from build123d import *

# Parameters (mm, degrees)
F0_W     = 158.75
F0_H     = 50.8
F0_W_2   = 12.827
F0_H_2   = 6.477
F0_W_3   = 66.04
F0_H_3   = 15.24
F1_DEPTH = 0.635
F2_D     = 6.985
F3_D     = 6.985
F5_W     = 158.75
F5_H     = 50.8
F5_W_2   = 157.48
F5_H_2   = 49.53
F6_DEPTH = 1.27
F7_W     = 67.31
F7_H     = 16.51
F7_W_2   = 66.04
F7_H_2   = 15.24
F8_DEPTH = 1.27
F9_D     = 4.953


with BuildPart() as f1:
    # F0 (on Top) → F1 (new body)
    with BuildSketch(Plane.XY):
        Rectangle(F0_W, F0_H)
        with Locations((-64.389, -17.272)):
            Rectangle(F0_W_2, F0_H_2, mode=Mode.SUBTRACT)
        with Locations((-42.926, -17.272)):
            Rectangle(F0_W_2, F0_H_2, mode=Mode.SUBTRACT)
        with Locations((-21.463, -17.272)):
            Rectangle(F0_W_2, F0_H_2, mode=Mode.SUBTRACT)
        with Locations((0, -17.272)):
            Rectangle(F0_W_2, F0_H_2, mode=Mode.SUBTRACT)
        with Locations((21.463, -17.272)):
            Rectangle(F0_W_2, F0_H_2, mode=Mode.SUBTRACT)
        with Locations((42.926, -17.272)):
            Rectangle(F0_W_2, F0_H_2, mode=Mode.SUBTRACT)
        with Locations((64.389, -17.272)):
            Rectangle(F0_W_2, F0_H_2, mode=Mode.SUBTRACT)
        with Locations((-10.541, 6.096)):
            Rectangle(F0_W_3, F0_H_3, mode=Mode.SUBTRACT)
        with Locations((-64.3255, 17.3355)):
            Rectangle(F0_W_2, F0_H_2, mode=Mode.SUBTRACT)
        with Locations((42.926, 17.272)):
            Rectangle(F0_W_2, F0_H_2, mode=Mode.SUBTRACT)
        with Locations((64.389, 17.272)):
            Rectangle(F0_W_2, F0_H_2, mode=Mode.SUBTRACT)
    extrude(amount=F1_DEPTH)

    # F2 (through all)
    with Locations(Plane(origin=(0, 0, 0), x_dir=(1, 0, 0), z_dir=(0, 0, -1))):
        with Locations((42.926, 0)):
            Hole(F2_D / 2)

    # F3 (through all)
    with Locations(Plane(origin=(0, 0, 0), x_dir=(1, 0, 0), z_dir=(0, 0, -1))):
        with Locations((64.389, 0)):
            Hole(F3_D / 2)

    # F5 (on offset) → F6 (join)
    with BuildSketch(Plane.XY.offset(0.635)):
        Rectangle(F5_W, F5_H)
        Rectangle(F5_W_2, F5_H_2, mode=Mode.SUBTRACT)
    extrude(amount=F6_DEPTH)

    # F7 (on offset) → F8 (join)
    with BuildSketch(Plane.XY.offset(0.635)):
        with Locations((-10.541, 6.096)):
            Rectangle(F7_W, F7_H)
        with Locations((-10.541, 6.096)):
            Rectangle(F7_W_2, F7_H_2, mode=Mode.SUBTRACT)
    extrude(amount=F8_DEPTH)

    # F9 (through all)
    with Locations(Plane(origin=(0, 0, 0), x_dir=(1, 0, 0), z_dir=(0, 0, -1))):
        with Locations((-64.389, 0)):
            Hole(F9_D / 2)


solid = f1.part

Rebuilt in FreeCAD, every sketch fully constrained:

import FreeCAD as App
import Part
import Sketcher
from FreeCAD import Vector
Q = App.Units.Quantity

doc = App.newDocument("Part")
body = doc.addObject("PartDesign::Body", "Body")

# Sketch on XY plane
sketch1 = body.newObject("Sketcher::SketchObject", "Sketch")
sketch1.AttachmentSupport = (doc.getObject("XY_Plane"), [""])
sketch1.MapMode = "FlatFace"
sketch1.addGeometry(Part.LineSegment(Vector(-79, 25, 0), Vector(-79, -25, 0)), False)
sketch1.addGeometry(Part.LineSegment(Vector(-79, -25, 0), Vector(79, -25, 0)), False)
sketch1.addGeometry(Part.LineSegment(Vector(79, -25, 0), Vector(79, 25, 0)), False)
sketch1.addGeometry(Part.LineSegment(Vector(79, 25, 0), Vector(-79, 25, 0)), False)
sketch1.addGeometry(Part.LineSegment(Vector(-58, -21, 0), Vector(-71, -21, 0)), False)
sketch1.addGeometry(Part.LineSegment(Vector(-71, -21, 0), Vector(-71, -14, 0)), False)
sketch1.addGeometry(Part.LineSegment(Vector(-71, -14, 0), Vector(-58, -14, 0)), False)
sketch1.addGeometry(Part.LineSegment(Vector(-58, -14, 0), Vector(-58, -21, 0)), False)
sketch1.addGeometry(Part.LineSegment(Vector(-37, -21, 0), Vector(-49, -21, 0)), False)
sketch1.addGeometry(Part.LineSegment(Vector(-49, -21, 0), Vector(-49, -14, 0)), False)
sketch1.addGeometry(Part.LineSegment(Vector(-49, -14, 0), Vector(-37, -14, 0)), False)
sketch1.addGeometry(Part.LineSegment(Vector(-37, -14, 0), Vector(-37, -21, 0)), False)
sketch1.addGeometry(Part.LineSegment(Vector(-15, -21, 0), Vector(-28, -21, 0)), False)
sketch1.addGeometry(Part.LineSegment(Vector(-28, -21, 0), Vector(-28, -14, 0)), False)
sketch1.addGeometry(Part.LineSegment(Vector(-28, -14, 0), Vector(-15, -14, 0)), False)
sketch1.addGeometry(Part.LineSegment(Vector(-15, -14, 0), Vector(-15, -21, 0)), False)
sketch1.addGeometry(Part.LineSegment(Vector(6, -21, 0), Vector(-6, -21, 0)), False)
sketch1.addGeometry(Part.LineSegment(Vector(-6, -21, 0), Vector(-6, -14, 0)), False)
sketch1.addGeometry(Part.LineSegment(Vector(-6, -14, 0), Vector(6, -14, 0)), False)
sketch1.addGeometry(Part.LineSegment(Vector(6, -14, 0), Vector(6, -21, 0)), False)
sketch1.addGeometry(Part.LineSegment(Vector(28, -21, 0), Vector(15, -21, 0)), False)
sketch1.addGeometry(Part.LineSegment(Vector(15, -21, 0), Vector(15, -14, 0)), False)
sketch1.addGeometry(Part.LineSegment(Vector(15, -14, 0), Vector(28, -14, 0)), False)
sketch1.addGeometry(Part.LineSegment(Vector(28, -14, 0), Vector(28, -21, 0)), False)
sketch1.addGeometry(Part.LineSegment(Vector(49, -21, 0), Vector(37, -21, 0)), False)
sketch1.addGeometry(Part.LineSegment(Vector(37, -21, 0), Vector(37, -14, 0)), False)
sketch1.addGeometry(Part.LineSegment(Vector(37, -14, 0), Vector(49, -14, 0)), False)
sketch1.addGeometry(Part.LineSegment(Vector(49, -14, 0), Vector(49, -21, 0)), False)
sketch1.addGeometry(Part.LineSegment(Vector(71, -21, 0), Vector(58, -21, 0)), False)
sketch1.addGeometry(Part.LineSegment(Vector(58, -21, 0), Vector(58, -14, 0)), False)
sketch1.addGeometry(Part.LineSegment(Vector(58, -14, 0), Vector(71, -14, 0)), False)
sketch1.addGeometry(Part.LineSegment(Vector(71, -14, 0), Vector(71, -21, 0)), False)
sketch1.addGeometry(Part.LineSegment(Vector(22, -2, 0), Vector(-44, -2, 0)), False)
sketch1.addGeometry(Part.LineSegment(Vector(-44, -2, 0), Vector(-44, 14, 0)), False)
sketch1.addGeometry(Part.LineSegment(Vector(-44, 14, 0), Vector(22, 14, 0)), False)
sketch1.addGeometry(Part.LineSegment(Vector(22, 14, 0), Vector(22, -2, 0)), False)
sketch1.addGeometry(Part.LineSegment(Vector(-58, 14, 0), Vector(-71, 14, 0)), False)
sketch1.addGeometry(Part.LineSegment(Vector(-71, 14, 0), Vector(-71, 21, 0)), False)
sketch1.addGeometry(Part.LineSegment(Vector(-71, 21, 0), Vector(-58, 21, 0)), False)
sketch1.addGeometry(Part.LineSegment(Vector(-58, 21, 0), Vector(-58, 14, 0)), False)
sketch1.addGeometry(Part.LineSegment(Vector(49, 14, 0), Vector(37, 14, 0)), False)
sketch1.addGeometry(Part.LineSegment(Vector(37, 14, 0), Vector(37, 21, 0)), False)
sketch1.addGeometry(Part.LineSegment(Vector(37, 21, 0), Vector(49, 21, 0)), False)
sketch1.addGeometry(Part.LineSegment(Vector(49, 21, 0), Vector(49, 14, 0)), False)
sketch1.addGeometry(Part.LineSegment(Vector(71, 14, 0), Vector(58, 14, 0)), False)
sketch1.addGeometry(Part.LineSegment(Vector(58, 14, 0), Vector(58, 21, 0)), False)
sketch1.addGeometry(Part.LineSegment(Vector(58, 21, 0), Vector(71, 21, 0)), False)
sketch1.addGeometry(Part.LineSegment(Vector(71, 21, 0), Vector(71, 14, 0)), False)
sketch1.addConstraint(Sketcher.Constraint("Coincident", 0, 2, 1, 1))
sketch1.addConstraint(Sketcher.Constraint("Coincident", 1, 2, 2, 1))
sketch1.addConstraint(Sketcher.Constraint("Coincident", 2, 2, 3, 1))
sketch1.addConstraint(Sketcher.Constraint("Coincident", 3, 2, 0, 1))
sketch1.addConstraint(Sketcher.Constraint("Coincident", 4, 2, 5, 1))
sketch1.addConstraint(Sketcher.Constraint("Coincident", 5, 2, 6, 1))
sketch1.addConstraint(Sketcher.Constraint("Coincident", 6, 2, 7, 1))
sketch1.addConstraint(Sketcher.Constraint("Coincident", 7, 2, 4, 1))
sketch1.addConstraint(Sketcher.Constraint("Coincident", 8, 2, 9, 1))
sketch1.addConstraint(Sketcher.Constraint("Coincident", 9, 2, 10, 1))
sketch1.addConstraint(Sketcher.Constraint("Coincident", 10, 2, 11, 1))
sketch1.addConstraint(Sketcher.Constraint("Coincident", 11, 2, 8, 1))
sketch1.addConstraint(Sketcher.Constraint("Coincident", 12, 2, 13, 1))
sketch1.addConstraint(Sketcher.Constraint("Coincident", 13, 2, 14, 1))
sketch1.addConstraint(Sketcher.Constraint("Coincident", 14, 2, 15, 1))
sketch1.addConstraint(Sketcher.Constraint("Coincident", 15, 2, 12, 1))
sketch1.addConstraint(Sketcher.Constraint("Coincident", 16, 2, 17, 1))
sketch1.addConstraint(Sketcher.Constraint("Coincident", 17, 2, 18, 1))
sketch1.addConstraint(Sketcher.Constraint("Coincident", 18, 2, 19, 1))
sketch1.addConstraint(Sketcher.Constraint("Coincident", 19, 2, 16, 1))
sketch1.addConstraint(Sketcher.Constraint("Coincident", 20, 2, 21, 1))
sketch1.addConstraint(Sketcher.Constraint("Coincident", 21, 2, 22, 1))
sketch1.addConstraint(Sketcher.Constraint("Coincident", 22, 2, 23, 1))
sketch1.addConstraint(Sketcher.Constraint("Coincident", 23, 2, 20, 1))
sketch1.addConstraint(Sketcher.Constraint("Coincident", 24, 2, 25, 1))
sketch1.addConstraint(Sketcher.Constraint("Coincident", 25, 2, 26, 1))
sketch1.addConstraint(Sketcher.Constraint("Coincident", 26, 2, 27, 1))
sketch1.addConstraint(Sketcher.Constraint("Coincident", 27, 2, 24, 1))
sketch1.addConstraint(Sketcher.Constraint("Coincident", 28, 2, 29, 1))
sketch1.addConstraint(Sketcher.Constraint("Coincident", 29, 2, 30, 1))
sketch1.addConstraint(Sketcher.Constraint("Coincident", 30, 2, 31, 1))
sketch1.addConstraint(Sketcher.Constraint("Coincident", 31, 2, 28, 1))
sketch1.addConstraint(Sketcher.Constraint("Coincident", 32, 2, 33, 1))
sketch1.addConstraint(Sketcher.Constraint("Coincident", 33, 2, 34, 1))
sketch1.addConstraint(Sketcher.Constraint("Coincident", 34, 2, 35, 1))
sketch1.addConstraint(Sketcher.Constraint("Coincident", 35, 2, 32, 1))
sketch1.addConstraint(Sketcher.Constraint("Coincident", 36, 2, 37, 1))
sketch1.addConstraint(Sketcher.Constraint("Coincident", 37, 2, 38, 1))
sketch1.addConstraint(Sketcher.Constraint("Coincident", 38, 2, 39, 1))
sketch1.addConstraint(Sketcher.Constraint("Coincident", 39, 2, 36, 1))
sketch1.addConstraint(Sketcher.Constraint("Coincident", 40, 2, 41, 1))
sketch1.addConstraint(Sketcher.Constraint("Coincident", 41, 2, 42, 1))
sketch1.addConstraint(Sketcher.Constraint("Coincident", 42, 2, 43, 1))
sketch1.addConstraint(Sketcher.Constraint("Coincident", 43, 2, 40, 1))
sketch1.addConstraint(Sketcher.Constraint("Coincident", 44, 2, 45, 1))
sketch1.addConstraint(Sketcher.Constraint("Coincident", 45, 2, 46, 1))
sketch1.addConstraint(Sketcher.Constraint("Coincident", 46, 2, 47, 1))
sketch1.addConstraint(Sketcher.Constraint("Coincident", 47, 2, 44, 1))
sketch1.addConstraint(Sketcher.Constraint("Vertical", 0))
sketch1.addConstraint(Sketcher.Constraint("Horizontal", 1))
sketch1.addConstraint(Sketcher.Constraint("Vertical", 2))
sketch1.addConstraint(Sketcher.Constraint("Horizontal", 3))
sketch1.addConstraint(Sketcher.Constraint("Horizontal", 4))
sketch1.addConstraint(Sketcher.Constraint("Vertical", 5))
sketch1.addConstraint(Sketcher.Constraint("Horizontal", 6))
sketch1.addConstraint(Sketcher.Constraint("Vertical", 7))
sketch1.addConstraint(Sketcher.Constraint("Horizontal", 8))
sketch1.addConstraint(Sketcher.Constraint("Vertical", 9))
sketch1.addConstraint(Sketcher.Constraint("Horizontal", 10))
sketch1.addConstraint(Sketcher.Constraint("Vertical", 11))
sketch1.addConstraint(Sketcher.Constraint("Horizontal", 12))
sketch1.addConstraint(Sketcher.Constraint("Vertical", 13))
sketch1.addConstraint(Sketcher.Constraint("Horizontal", 14))
sketch1.addConstraint(Sketcher.Constraint("Vertical", 15))
sketch1.addConstraint(Sketcher.Constraint("Horizontal", 16))
sketch1.addConstraint(Sketcher.Constraint("Vertical", 17))
sketch1.addConstraint(Sketcher.Constraint("Horizontal", 18))
sketch1.addConstraint(Sketcher.Constraint("Vertical", 19))
sketch1.addConstraint(Sketcher.Constraint("Horizontal", 20))
sketch1.addConstraint(Sketcher.Constraint("Vertical", 21))
sketch1.addConstraint(Sketcher.Constraint("Horizontal", 22))
sketch1.addConstraint(Sketcher.Constraint("Vertical", 23))
sketch1.addConstraint(Sketcher.Constraint("Horizontal", 24))
sketch1.addConstraint(Sketcher.Constraint("Vertical", 25))
sketch1.addConstraint(Sketcher.Constraint("Horizontal", 26))
sketch1.addConstraint(Sketcher.Constraint("Vertical", 27))
sketch1.addConstraint(Sketcher.Constraint("Horizontal", 28))
sketch1.addConstraint(Sketcher.Constraint("Vertical", 29))
sketch1.addConstraint(Sketcher.Constraint("Horizontal", 30))
sketch1.addConstraint(Sketcher.Constraint("Vertical", 31))
sketch1.addConstraint(Sketcher.Constraint("Horizontal", 32))
sketch1.addConstraint(Sketcher.Constraint("Vertical", 33))
sketch1.addConstraint(Sketcher.Constraint("Horizontal", 34))
sketch1.addConstraint(Sketcher.Constraint("Vertical", 35))
sketch1.addConstraint(Sketcher.Constraint("Horizontal", 36))
sketch1.addConstraint(Sketcher.Constraint("Vertical", 37))
sketch1.addConstraint(Sketcher.Constraint("Horizontal", 38))
sketch1.addConstraint(Sketcher.Constraint("Vertical", 39))
sketch1.addConstraint(Sketcher.Constraint("Horizontal", 40))
sketch1.addConstraint(Sketcher.Constraint("Vertical", 41))
sketch1.addConstraint(Sketcher.Constraint("Horizontal", 42))
sketch1.addConstraint(Sketcher.Constraint("Vertical", 43))
sketch1.addConstraint(Sketcher.Constraint("Horizontal", 44))
sketch1.addConstraint(Sketcher.Constraint("Vertical", 45))
sketch1.addConstraint(Sketcher.Constraint("Horizontal", 46))
sketch1.addConstraint(Sketcher.Constraint("Vertical", 47))
sketch1.addConstraint(Sketcher.Constraint("Symmetric", 0, 2, 2, 2, -1, 1))
sketch1.addConstraint(Sketcher.Constraint("Symmetric", 10, 2, 40, 2, -1, 1))
sketch1.addConstraint(Sketcher.Constraint("Symmetric", 8, 2, 42, 2, -1, 1))
sketch1.addConstraint(Sketcher.Constraint("Symmetric", 6, 2, 44, 2, -1, 1))
sketch1.addConstraint(Sketcher.Constraint("Symmetric", 4, 2, 46, 2, -1, 1))
sketch1.addConstraint(Sketcher.Constraint("Symmetric", 15, 2, 20, 2, -2))
sketch1.addConstraint(Sketcher.Constraint("Symmetric", 13, 2, 22, 2, -2))
sketch1.addConstraint(Sketcher.Constraint("Symmetric", 11, 2, 24, 2, -2))
sketch1.addConstraint(Sketcher.Constraint("Symmetric", 9, 2, 26, 2, -2))
sketch1.addConstraint(Sketcher.Constraint("Symmetric", 7, 2, 28, 2, -2))
sketch1.addConstraint(Sketcher.Constraint("Symmetric", 5, 2, 30, 2, -2))
sketch1.addConstraint(Sketcher.Constraint("Horizontal", 7, 2, 8, 2))
sketch1.addConstraint(Sketcher.Constraint("Horizontal", 6, 2, 9, 2))
sketch1.addConstraint(Sketcher.Constraint("Horizontal", 11, 2, 12, 2))
sketch1.addConstraint(Sketcher.Constraint("Horizontal", 10, 2, 13, 2))
sketch1.addConstraint(Sketcher.Constraint("Horizontal", 15, 2, 16, 2))
sketch1.addConstraint(Sketcher.Constraint("Horizontal", 14, 2, 17, 2))
sketch1.addConstraint(Sketcher.Constraint("Equal", 6, 8))
sketch1.addConstraint(Sketcher.Constraint("Equal", 10, 12))
sketch1.addConstraint(Sketcher.Constraint("Equal", 14, 16))
sketch1.addConstraint(Sketcher.Constraint("Equal", 30, 36))
sketch1.addConstraint(Sketcher.Constraint("Equal", 31, 37))
sketch1.addConstraint(Sketcher.Constraint("DistanceY", 0, 2, 0, 1, Q("2 in")))
sketch1.addConstraint(Sketcher.Constraint("DistanceX", 32, 2, 32, 1, Q("2.6 in")))
sketch1.addConstraint(Sketcher.Constraint("DistanceY", 33, 1, 33, 2, Q("0.6 in")))
sketch1.addConstraint(Sketcher.Constraint("DistanceX", 1, 1, 1, 2, Q("6.25 in")))
sketch1.addConstraint(Sketcher.Constraint("DistanceX", 4, 2, 4, 1, Q("0.505 in")))
sketch1.addConstraint(Sketcher.Constraint("DistanceY", 5, 1, 5, 2, Q("0.255 in")))
sketch1.addConstraint(Sketcher.Constraint("DistanceY", 32, 2, -1, 1, Q("0.06 in")))
sketch1.addConstraint(Sketcher.Constraint("DistanceY", -1, 1, 37, 2, Q("0.81 in")))
sketch1.addConstraint(Sketcher.Constraint("DistanceX", 38, 2, -1, 1, Q("2.28 in")))
sketch1.addConstraint(Sketcher.Constraint("DistanceX", 7, 2, 8, 2, Q("0.34 in")))
sketch1.addConstraint(Sketcher.Constraint("DistanceX", 11, 2, 12, 2, Q("0.34 in")))
sketch1.addConstraint(Sketcher.Constraint("DistanceX", 15, 2, 16, 2, Q("0.34 in")))
sketch1.addConstraint(Sketcher.Constraint("DistanceX", 19, 2, 20, 2, Q("0.34 in")))
sketch1.addConstraint(Sketcher.Constraint("DistanceX", 36, 2, 33, 2, Q("1.07 in")))
sketch1.addConstraint(Sketcher.Constraint("DistanceY", 25, 2, 41, 2, Q("1.36 in")))
pad1 = body.newObject("PartDesign::Pad", "Pad")
pad1.Profile = sketch1
pad1.Length = Q("0.025 in")

# Sketch on XY plane
sketch2 = body.newObject("Sketcher::SketchObject", "Sketch001")
sketch2.AttachmentSupport = (doc.getObject("XY_Plane"), [""])
sketch2.MapMode = "FlatFace"
sketch2.addGeometry(Part.Circle(Vector(42.9, 0, 0), Vector(0, 0, 1), 3.5), False)
sketch2.addConstraint(Sketcher.Constraint("PointOnObject", 0, 3, -1))
sketch2.addConstraint(Sketcher.Constraint("Diameter", 0, Q("0.275 in")))
sketch2.addConstraint(Sketcher.Constraint("DistanceX", -1, 1, 0, 3, Q("1.69 in")))
doc.recompute()
hole = body.newObject("PartDesign::Hole", "Hole")
hole.Profile = sketch2
hole.ThreadType = "None"
hole.Diameter = Q("0.275 in")
hole.DepthType = "ThroughAll"
hole.Reversed = True

# Sketch on XY plane
sketch3 = body.newObject("Sketcher::SketchObject", "Sketch002")
sketch3.AttachmentSupport = (doc.getObject("XY_Plane"), [""])
sketch3.MapMode = "FlatFace"
sketch3.addGeometry(Part.Circle(Vector(64.4, 0, 0), Vector(0, 0, 1), 3.5), False)
sketch3.addConstraint(Sketcher.Constraint("PointOnObject", 0, 3, -1))
sketch3.addConstraint(Sketcher.Constraint("Diameter", 0, Q("0.275 in")))
sketch3.addConstraint(Sketcher.Constraint("DistanceX", -1, 1, 0, 3, Q("2.535 in")))
doc.recompute()
hole2 = body.newObject("PartDesign::Hole", "Hole001")
hole2.Profile = sketch3
hole2.ThreadType = "None"
hole2.Diameter = Q("0.275 in")
hole2.DepthType = "ThroughAll"
hole2.Reversed = True

# Sketch on XY plane
sketch4 = body.newObject("Sketcher::SketchObject", "Sketch003")
sketch4.AttachmentSupport = (doc.getObject("XY_Plane"), [""])
sketch4.MapMode = "FlatFace"
sketch4.AttachmentOffset = App.Placement(Vector(0, 0, 0.025 * 25.4), App.Rotation())
sketch4.addGeometry(Part.LineSegment(Vector(-79, 25, 0), Vector(-79, -25, 0)), False)
sketch4.addGeometry(Part.LineSegment(Vector(-79, -25, 0), Vector(79, -25, 0)), False)
sketch4.addGeometry(Part.LineSegment(Vector(79, -25, 0), Vector(79, 25, 0)), False)
sketch4.addGeometry(Part.LineSegment(Vector(79, 25, 0), Vector(-79, 25, 0)), False)
sketch4.addGeometry(Part.LineSegment(Vector(79, -25, 0), Vector(-79, -25, 0)), False)
sketch4.addGeometry(Part.LineSegment(Vector(-79, -25, 0), Vector(-79, 25, 0)), False)
sketch4.addGeometry(Part.LineSegment(Vector(-79, 25, 0), Vector(79, 25, 0)), False)
sketch4.addGeometry(Part.LineSegment(Vector(79, 25, 0), Vector(79, -25, 0)), False)
sketch4.addConstraint(Sketcher.Constraint("Coincident", 0, 2, 1, 1))
sketch4.addConstraint(Sketcher.Constraint("Coincident", 1, 2, 2, 1))
sketch4.addConstraint(Sketcher.Constraint("Coincident", 2, 2, 3, 1))
sketch4.addConstraint(Sketcher.Constraint("Coincident", 3, 2, 0, 1))
sketch4.addConstraint(Sketcher.Constraint("Coincident", 4, 2, 5, 1))
sketch4.addConstraint(Sketcher.Constraint("Coincident", 5, 2, 6, 1))
sketch4.addConstraint(Sketcher.Constraint("Coincident", 6, 2, 7, 1))
sketch4.addConstraint(Sketcher.Constraint("Coincident", 7, 2, 4, 1))
sketch4.addConstraint(Sketcher.Constraint("Vertical", 0))
sketch4.addConstraint(Sketcher.Constraint("Horizontal", 1))
sketch4.addConstraint(Sketcher.Constraint("Vertical", 2))
sketch4.addConstraint(Sketcher.Constraint("Horizontal", 3))
sketch4.addConstraint(Sketcher.Constraint("Horizontal", 4))
sketch4.addConstraint(Sketcher.Constraint("Vertical", 5))
sketch4.addConstraint(Sketcher.Constraint("Horizontal", 6))
sketch4.addConstraint(Sketcher.Constraint("Vertical", 7))
sketch4.addConstraint(Sketcher.Constraint("Symmetric", 0, 2, 2, 2, -1, 1))
sketch4.addConstraint(Sketcher.Constraint("Symmetric", 4, 2, 6, 2, -1, 1))
sketch4.addConstraint(Sketcher.Constraint("DistanceY", 0, 2, 0, 1, Q("2 in")))
sketch4.addConstraint(Sketcher.Constraint("DistanceX", 4, 2, 4, 1, Q("6.2 in")))
sketch4.addConstraint(Sketcher.Constraint("DistanceX", 1, 1, 1, 2, Q("6.25 in")))
sketch4.addConstraint(Sketcher.Constraint("DistanceY", 5, 1, 5, 2, Q("1.95 in")))
pad2 = body.newObject("PartDesign::Pad", "Pad001")
pad2.Profile = sketch4
pad2.Length = Q("0.05 in")

# Sketch on XY plane
sketch5 = body.newObject("Sketcher::SketchObject", "Sketch004")
sketch5.AttachmentSupport = (doc.getObject("XY_Plane"), [""])
sketch5.MapMode = "FlatFace"
sketch5.AttachmentOffset = App.Placement(Vector(0, 0, 0.025 * 25.4), App.Rotation())
sketch5.addGeometry(Part.LineSegment(Vector(-44, 14, 0), Vector(-44, -2, 0)), False)
sketch5.addGeometry(Part.LineSegment(Vector(-44, -2, 0), Vector(23, -2, 0)), False)
sketch5.addGeometry(Part.LineSegment(Vector(23, -2, 0), Vector(23, 14, 0)), False)
sketch5.addGeometry(Part.LineSegment(Vector(23, 14, 0), Vector(-44, 14, 0)), False)
sketch5.addGeometry(Part.LineSegment(Vector(22, -2, 0), Vector(-44, -2, 0)), False)
sketch5.addGeometry(Part.LineSegment(Vector(-44, -2, 0), Vector(-44, 14, 0)), False)
sketch5.addGeometry(Part.LineSegment(Vector(-44, 14, 0), Vector(22, 14, 0)), False)
sketch5.addGeometry(Part.LineSegment(Vector(22, 14, 0), Vector(22, -2, 0)), False)
sketch5.addConstraint(Sketcher.Constraint("Coincident", 0, 2, 1, 1))
sketch5.addConstraint(Sketcher.Constraint("Coincident", 1, 2, 2, 1))
sketch5.addConstraint(Sketcher.Constraint("Coincident", 2, 2, 3, 1))
sketch5.addConstraint(Sketcher.Constraint("Coincident", 3, 2, 0, 1))
sketch5.addConstraint(Sketcher.Constraint("Coincident", 4, 2, 5, 1))
sketch5.addConstraint(Sketcher.Constraint("Coincident", 5, 2, 6, 1))
sketch5.addConstraint(Sketcher.Constraint("Coincident", 6, 2, 7, 1))
sketch5.addConstraint(Sketcher.Constraint("Coincident", 7, 2, 4, 1))
sketch5.addConstraint(Sketcher.Constraint("Vertical", 0))
sketch5.addConstraint(Sketcher.Constraint("Horizontal", 1))
sketch5.addConstraint(Sketcher.Constraint("Vertical", 2))
sketch5.addConstraint(Sketcher.Constraint("Horizontal", 3))
sketch5.addConstraint(Sketcher.Constraint("Horizontal", 4))
sketch5.addConstraint(Sketcher.Constraint("Vertical", 5))
sketch5.addConstraint(Sketcher.Constraint("Horizontal", 6))
sketch5.addConstraint(Sketcher.Constraint("Vertical", 7))
sketch5.addConstraint(Sketcher.Constraint("DistanceX", 4, 2, 4, 1, Q("2.6 in")))
sketch5.addConstraint(Sketcher.Constraint("DistanceY", 5, 1, 5, 2, Q("0.6 in")))
sketch5.addConstraint(Sketcher.Constraint("DistanceX", 1, 1, 1, 2, Q("2.65 in")))
sketch5.addConstraint(Sketcher.Constraint("DistanceY", 0, 2, 0, 1, Q("0.65 in")))
sketch5.addConstraint(Sketcher.Constraint("DistanceX", 0, 2, -1, 1, Q("1.74 in")))
sketch5.addConstraint(Sketcher.Constraint("DistanceY", 4, 2, -1, 1, Q("0.06 in")))
sketch5.addConstraint(Sketcher.Constraint("DistanceY", 0, 2, -1, 1, Q("0.085 in")))
sketch5.addConstraint(Sketcher.Constraint("DistanceX", 4, 2, -1, 1, Q("1.715 in")))
pad3 = body.newObject("PartDesign::Pad", "Pad002")
pad3.Profile = sketch5
pad3.Length = Q("0.05 in")

# Sketch on XY plane
sketch6 = body.newObject("Sketcher::SketchObject", "Sketch005")
sketch6.AttachmentSupport = (doc.getObject("XY_Plane"), [""])
sketch6.MapMode = "FlatFace"
sketch6.addGeometry(Part.Circle(Vector(-64.4, 0, 0), Vector(0, 0, 1), 2.5), False)
sketch6.addConstraint(Sketcher.Constraint("PointOnObject", 0, 3, -1))
sketch6.addConstraint(Sketcher.Constraint("Diameter", 0, Q("0.195 in")))
sketch6.addConstraint(Sketcher.Constraint("DistanceX", 0, 3, -1, 1, Q("2.535 in")))
doc.recompute()
hole3 = body.newObject("PartDesign::Hole", "Hole002")
hole3.Profile = sketch6
hole3.ThreadType = "None"
hole3.Diameter = Q("0.195 in")
hole3.DepthType = "ThroughAll"
hole3.Reversed = True

doc.recompute()
